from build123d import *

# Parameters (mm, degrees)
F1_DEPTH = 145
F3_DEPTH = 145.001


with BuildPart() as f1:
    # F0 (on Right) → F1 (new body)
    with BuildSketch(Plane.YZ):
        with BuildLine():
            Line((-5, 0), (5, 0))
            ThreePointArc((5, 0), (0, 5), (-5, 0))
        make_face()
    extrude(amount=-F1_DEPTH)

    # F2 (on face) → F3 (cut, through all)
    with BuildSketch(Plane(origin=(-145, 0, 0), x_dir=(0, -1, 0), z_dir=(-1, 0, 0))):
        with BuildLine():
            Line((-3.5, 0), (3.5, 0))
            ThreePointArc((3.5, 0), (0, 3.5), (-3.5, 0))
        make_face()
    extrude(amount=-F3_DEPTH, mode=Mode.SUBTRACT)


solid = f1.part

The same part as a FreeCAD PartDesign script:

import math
import FreeCAD as App
import Part
import Sketcher

doc = App.newDocument("Part")
params = doc.addObject("Spreadsheet::Sheet", "Params")
for row, (alias, value) in enumerate([
    ("sketch1_radius", "5 mm"),
    ("pad1_length", "145 mm"),
    ("sketch2_radius", "3.5 mm"),
], start=1):
    params.set(f"A{row}", alias)
    params.set(f"B{row}", "=" + value)
    params.setAlias(f"B{row}", alias)

body = doc.addObject("PartDesign::Body", "Body")

# Sketch on YZ plane
sketch1 = doc.addObject("Sketcher::SketchObject", "Sketch")
body.addObject(sketch1)
sketch1.AttachmentSupport = (doc.YZ_Plane, [""])
sketch1.MapMode = "FlatFace"
sketch1.addGeometry([
    Part.LineSegment(App.Vector(-5, 0, 0), App.Vector(5, 0, 0)),
    Part.ArcOfCircle(Part.Circle(App.Vector(0, 0, 0), App.Vector(0, 0, 1), 5), math.radians(0), math.radians(180)),
], False)
sketch1.addConstraint([
    Sketcher.Constraint("Coincident", 0, 1, 1, 2),
    Sketcher.Constraint("Coincident", 1, 1, 0, 2),
    Sketcher.Constraint("Horizontal", 0),
    Sketcher.Constraint("Coincident", 1, 3, -1, 1),
    Sketcher.Constraint("PointOnObject", 0, 1, -1),
    Sketcher.Constraint("Radius", 1, 5.0),
])
sketch1.setExpression("Constraints[5]", "Params.sketch1_radius")
pad1 = doc.addObject("PartDesign::Pad", "Pad")
body.addObject(pad1)
pad1.Profile = sketch1
pad1.setExpression("Length", "Params.pad1_length")
pad1.Reversed = True

# Sketch on YZ plane
sketch2 = doc.addObject("Sketcher::SketchObject", "Sketch001")
body.addObject(sketch2)
sketch2.AttachmentSupport = (doc.YZ_Plane, [""])
sketch2.MapMode = "FlatFace"
sketch2.AttachmentOffset = App.Placement(App.Vector(0, 0, -145), App.Rotation())
sketch2.addGeometry([
    Part.LineSegment(App.Vector(3.5, 0, 0), App.Vector(-3.5, 0, 0)),
    Part.ArcOfCircle(Part.Circle(App.Vector(0, 0, 0), App.Vector(0, 0, 1), 3.5), math.radians(0), math.radians(180)),
], False)
sketch2.addConstraint([
    Sketcher.Constraint("Coincident", 0, 1, 1, 1),
    Sketcher.Constraint("Coincident", 1, 2, 0, 2),
    Sketcher.Constraint("Horizontal", 0),
    Sketcher.Constraint("Coincident", 1, 3, -1, 1),
    Sketcher.Constraint("PointOnObject", 0, 1, -1),
    Sketcher.Constraint("Radius", 1, 3.5),
])
sketch2.setExpression("Constraints[5]", "Params.sketch2_radius")
pocket1 = doc.addObject("PartDesign::Pocket", "Pocket")
body.addObject(pocket1)
pocket1.Profile = sketch2
pocket1.Type = "ThroughAll"
pocket1.Reversed = True

doc.recompute()
